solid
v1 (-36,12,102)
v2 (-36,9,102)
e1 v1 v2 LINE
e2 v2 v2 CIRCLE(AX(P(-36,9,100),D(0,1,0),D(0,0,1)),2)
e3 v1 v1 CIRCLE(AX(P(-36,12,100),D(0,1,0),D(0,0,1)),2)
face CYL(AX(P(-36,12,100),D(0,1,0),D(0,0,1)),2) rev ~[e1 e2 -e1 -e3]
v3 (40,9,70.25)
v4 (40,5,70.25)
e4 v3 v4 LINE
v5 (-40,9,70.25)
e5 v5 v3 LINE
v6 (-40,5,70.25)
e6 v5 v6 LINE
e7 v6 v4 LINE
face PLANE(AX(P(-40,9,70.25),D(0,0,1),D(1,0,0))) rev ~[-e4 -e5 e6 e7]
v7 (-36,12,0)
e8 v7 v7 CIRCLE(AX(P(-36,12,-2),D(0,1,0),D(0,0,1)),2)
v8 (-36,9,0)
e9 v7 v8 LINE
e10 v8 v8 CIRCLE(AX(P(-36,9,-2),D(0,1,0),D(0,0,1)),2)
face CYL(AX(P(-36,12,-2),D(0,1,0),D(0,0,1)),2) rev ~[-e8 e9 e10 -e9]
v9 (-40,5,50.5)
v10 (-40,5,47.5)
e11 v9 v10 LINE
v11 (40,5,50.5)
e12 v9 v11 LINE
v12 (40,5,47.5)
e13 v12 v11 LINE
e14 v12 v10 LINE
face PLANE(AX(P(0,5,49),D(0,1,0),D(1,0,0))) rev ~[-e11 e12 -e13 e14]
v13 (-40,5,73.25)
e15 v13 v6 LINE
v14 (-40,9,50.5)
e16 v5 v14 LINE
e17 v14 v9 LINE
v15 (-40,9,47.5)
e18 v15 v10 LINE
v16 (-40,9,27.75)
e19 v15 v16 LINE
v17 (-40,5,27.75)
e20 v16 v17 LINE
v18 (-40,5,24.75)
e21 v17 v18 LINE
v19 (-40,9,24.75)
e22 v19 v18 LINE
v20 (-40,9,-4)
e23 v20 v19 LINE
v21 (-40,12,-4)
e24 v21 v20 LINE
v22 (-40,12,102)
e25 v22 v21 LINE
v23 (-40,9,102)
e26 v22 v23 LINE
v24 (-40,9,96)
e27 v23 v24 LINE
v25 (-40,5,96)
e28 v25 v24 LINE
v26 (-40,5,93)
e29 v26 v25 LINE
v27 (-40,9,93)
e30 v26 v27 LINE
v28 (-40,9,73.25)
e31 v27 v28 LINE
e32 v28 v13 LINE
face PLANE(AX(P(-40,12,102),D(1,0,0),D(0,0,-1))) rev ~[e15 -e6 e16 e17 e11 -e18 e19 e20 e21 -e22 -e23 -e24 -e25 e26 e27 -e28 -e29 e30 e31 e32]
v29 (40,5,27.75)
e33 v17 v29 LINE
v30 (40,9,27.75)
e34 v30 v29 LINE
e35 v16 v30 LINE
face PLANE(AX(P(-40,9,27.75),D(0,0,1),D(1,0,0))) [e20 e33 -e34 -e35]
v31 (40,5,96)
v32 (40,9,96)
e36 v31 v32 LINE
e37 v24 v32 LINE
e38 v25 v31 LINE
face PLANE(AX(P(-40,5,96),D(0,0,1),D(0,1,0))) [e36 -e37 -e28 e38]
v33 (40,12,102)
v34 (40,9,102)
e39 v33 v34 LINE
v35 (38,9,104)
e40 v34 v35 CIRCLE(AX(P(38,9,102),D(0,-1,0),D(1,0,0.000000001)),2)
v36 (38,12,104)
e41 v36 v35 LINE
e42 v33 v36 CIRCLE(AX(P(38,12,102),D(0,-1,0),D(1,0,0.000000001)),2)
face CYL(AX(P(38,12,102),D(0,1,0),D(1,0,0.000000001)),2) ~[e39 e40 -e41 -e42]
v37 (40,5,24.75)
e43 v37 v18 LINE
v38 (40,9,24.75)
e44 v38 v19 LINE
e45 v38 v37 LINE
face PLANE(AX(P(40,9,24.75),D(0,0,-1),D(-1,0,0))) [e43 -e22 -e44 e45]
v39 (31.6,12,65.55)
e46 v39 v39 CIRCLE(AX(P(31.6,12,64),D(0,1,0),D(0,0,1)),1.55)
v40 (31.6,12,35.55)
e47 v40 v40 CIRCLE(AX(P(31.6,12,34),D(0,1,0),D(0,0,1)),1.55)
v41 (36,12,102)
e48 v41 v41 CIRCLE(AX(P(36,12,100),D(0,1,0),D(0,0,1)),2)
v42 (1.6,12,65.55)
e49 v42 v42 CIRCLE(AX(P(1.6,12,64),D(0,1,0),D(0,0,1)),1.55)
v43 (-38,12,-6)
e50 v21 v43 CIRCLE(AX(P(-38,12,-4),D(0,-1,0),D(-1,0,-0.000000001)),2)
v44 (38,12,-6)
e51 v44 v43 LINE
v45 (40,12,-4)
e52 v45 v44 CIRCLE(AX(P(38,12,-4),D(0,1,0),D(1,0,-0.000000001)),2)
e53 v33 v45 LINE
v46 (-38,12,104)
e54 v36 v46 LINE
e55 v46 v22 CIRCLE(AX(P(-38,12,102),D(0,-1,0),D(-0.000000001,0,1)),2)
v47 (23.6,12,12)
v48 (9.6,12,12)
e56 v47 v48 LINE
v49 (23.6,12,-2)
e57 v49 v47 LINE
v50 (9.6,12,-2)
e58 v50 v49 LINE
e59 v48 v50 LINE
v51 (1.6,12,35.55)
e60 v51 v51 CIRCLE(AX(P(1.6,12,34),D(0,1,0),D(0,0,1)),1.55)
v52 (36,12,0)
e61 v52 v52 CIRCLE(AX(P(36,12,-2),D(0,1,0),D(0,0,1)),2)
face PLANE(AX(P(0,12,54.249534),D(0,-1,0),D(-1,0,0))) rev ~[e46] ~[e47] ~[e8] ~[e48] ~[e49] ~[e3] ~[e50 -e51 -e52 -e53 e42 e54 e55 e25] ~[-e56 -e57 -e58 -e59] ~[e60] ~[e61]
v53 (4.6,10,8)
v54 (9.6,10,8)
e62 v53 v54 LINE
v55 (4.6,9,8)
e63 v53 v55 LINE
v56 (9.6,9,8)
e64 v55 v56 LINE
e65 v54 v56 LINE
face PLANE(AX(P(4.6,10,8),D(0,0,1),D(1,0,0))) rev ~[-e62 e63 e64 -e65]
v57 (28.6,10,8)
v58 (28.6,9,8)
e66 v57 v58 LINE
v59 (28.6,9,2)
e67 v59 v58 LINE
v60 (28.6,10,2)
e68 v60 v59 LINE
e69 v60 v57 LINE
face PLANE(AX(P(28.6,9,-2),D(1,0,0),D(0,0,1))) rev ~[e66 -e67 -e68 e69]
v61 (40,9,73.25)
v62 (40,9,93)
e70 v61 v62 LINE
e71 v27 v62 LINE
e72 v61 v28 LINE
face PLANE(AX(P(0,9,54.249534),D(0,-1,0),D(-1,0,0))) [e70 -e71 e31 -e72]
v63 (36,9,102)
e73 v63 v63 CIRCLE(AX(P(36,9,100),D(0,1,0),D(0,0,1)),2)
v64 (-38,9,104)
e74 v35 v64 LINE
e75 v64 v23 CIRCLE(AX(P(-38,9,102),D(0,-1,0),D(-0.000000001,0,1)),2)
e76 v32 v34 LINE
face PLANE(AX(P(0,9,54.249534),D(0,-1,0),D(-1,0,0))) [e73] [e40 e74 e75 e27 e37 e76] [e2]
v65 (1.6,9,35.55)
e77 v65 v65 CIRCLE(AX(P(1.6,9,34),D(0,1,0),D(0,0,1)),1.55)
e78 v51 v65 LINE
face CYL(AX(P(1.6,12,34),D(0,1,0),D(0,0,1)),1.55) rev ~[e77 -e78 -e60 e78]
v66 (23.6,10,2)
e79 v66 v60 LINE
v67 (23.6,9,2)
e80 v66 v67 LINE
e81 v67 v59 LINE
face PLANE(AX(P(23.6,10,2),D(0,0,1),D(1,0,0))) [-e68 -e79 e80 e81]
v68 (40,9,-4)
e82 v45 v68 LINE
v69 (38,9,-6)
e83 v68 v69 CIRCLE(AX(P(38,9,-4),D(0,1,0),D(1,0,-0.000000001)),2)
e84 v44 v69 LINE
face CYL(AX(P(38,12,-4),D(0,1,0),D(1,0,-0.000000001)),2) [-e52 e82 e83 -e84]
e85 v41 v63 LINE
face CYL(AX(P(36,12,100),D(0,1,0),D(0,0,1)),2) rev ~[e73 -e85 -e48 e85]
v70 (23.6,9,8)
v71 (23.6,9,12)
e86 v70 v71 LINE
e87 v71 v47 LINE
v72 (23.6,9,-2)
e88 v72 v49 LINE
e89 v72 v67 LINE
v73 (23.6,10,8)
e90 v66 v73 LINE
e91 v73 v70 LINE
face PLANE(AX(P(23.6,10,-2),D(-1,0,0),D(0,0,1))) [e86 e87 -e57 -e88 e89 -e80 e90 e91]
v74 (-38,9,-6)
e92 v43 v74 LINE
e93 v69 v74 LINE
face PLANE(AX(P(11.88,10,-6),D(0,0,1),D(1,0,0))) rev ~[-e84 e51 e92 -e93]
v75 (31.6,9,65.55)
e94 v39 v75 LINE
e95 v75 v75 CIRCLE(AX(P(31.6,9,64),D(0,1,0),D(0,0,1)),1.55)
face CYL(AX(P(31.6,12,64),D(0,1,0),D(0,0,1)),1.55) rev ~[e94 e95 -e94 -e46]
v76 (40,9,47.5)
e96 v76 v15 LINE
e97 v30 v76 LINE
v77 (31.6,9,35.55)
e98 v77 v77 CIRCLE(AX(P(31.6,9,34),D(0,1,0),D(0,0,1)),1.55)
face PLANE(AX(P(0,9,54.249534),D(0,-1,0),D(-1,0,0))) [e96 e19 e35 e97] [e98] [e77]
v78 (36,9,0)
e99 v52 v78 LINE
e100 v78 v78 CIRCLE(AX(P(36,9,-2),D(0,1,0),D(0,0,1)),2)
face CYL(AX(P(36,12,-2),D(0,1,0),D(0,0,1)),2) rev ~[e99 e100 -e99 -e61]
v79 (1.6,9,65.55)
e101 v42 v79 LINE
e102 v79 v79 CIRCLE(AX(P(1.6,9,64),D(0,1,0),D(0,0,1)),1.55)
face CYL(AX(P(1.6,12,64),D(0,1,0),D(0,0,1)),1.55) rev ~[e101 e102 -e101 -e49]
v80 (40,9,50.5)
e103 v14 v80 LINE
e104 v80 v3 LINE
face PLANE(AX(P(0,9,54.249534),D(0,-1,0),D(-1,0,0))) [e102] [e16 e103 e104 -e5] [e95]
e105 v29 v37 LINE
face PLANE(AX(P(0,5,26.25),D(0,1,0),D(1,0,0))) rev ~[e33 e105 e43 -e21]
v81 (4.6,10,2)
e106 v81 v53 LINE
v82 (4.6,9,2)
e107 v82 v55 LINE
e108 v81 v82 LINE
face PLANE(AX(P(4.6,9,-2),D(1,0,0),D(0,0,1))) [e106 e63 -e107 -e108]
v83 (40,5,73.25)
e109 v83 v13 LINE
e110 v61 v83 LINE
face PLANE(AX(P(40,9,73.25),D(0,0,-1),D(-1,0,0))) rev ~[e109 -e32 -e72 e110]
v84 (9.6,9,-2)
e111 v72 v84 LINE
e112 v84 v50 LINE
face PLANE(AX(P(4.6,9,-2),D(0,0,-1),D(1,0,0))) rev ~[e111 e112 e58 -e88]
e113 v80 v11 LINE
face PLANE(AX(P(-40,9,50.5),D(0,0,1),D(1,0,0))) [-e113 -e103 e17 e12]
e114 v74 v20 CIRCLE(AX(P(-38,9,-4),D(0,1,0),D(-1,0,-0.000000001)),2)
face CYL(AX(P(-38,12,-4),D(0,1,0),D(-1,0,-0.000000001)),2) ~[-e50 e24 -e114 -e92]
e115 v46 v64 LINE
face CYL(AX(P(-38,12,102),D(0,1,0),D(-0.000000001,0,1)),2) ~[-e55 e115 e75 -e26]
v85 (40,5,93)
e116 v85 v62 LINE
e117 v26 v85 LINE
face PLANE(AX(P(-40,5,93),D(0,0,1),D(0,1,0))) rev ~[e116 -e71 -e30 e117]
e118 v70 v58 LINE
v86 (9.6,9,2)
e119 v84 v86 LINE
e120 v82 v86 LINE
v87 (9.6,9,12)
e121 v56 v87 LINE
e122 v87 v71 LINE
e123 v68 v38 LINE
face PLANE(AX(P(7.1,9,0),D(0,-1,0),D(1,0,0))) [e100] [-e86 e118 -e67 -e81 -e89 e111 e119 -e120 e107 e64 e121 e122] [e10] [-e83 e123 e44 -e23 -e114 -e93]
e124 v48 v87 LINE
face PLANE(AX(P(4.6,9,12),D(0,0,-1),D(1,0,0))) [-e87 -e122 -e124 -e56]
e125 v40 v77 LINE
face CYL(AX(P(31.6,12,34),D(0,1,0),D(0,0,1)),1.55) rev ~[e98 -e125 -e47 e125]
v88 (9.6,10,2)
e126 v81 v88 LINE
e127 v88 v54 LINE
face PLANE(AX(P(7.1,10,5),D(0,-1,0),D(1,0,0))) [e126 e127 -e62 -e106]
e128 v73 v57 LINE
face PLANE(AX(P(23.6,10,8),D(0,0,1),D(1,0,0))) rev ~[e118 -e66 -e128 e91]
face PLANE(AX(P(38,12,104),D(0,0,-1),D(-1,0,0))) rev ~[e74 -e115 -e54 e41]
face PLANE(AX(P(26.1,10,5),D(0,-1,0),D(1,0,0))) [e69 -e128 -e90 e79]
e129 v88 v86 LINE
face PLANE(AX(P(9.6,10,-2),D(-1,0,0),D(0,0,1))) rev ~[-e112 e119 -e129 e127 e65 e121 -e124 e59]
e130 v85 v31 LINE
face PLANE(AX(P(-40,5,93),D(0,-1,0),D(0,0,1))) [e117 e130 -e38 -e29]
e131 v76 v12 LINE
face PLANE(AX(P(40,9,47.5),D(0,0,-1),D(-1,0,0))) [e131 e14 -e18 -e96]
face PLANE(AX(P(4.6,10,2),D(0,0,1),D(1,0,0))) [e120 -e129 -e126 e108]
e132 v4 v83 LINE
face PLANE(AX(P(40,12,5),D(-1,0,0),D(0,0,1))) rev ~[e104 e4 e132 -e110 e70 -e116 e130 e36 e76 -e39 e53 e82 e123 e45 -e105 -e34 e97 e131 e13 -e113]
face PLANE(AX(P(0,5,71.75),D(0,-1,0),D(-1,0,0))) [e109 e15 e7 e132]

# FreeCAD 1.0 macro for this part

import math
import FreeCAD as App
import Part
import Sketcher
from FreeCAD import Vector
Q = App.Units.Quantity


def add_polygon(sketch, points):
    """Adds a closed chain of lines whose ends are joined by coincident constraints."""
    first, n = sketch.GeometryCount, len(points)
    for a, b in zip(points, points[1:] + points[:1]):
        sketch.addGeometry(Part.LineSegment(App.Vector(*a, 0), App.Vector(*b, 0)), False)
    for i in range(n):
        sketch.addConstraint(Sketcher.Constraint("Coincident", first + i, 2, first + (i + 1) % n, 1))

doc = App.newDocument("Part")
body = doc.addObject("PartDesign::Body", "Body")

# Sketch on XZ plane
sketch1 = body.newObject("Sketcher::SketchObject", "Sketch")
sketch1.AttachmentSupport = (doc.getObject("XZ_Plane"), [""])
sketch1.MapMode = "FlatFace"
add_polygon(sketch1, [(-40, 6), (40, 6), (40, -6), (-40, -6)])  # lines 0-3
sketch1.addConstraint([
    Sketcher.Constraint("Horizontal", 0),
    Sketcher.Constraint("Vertical", 1),
    Sketcher.Constraint("Horizontal", 2),
    Sketcher.Constraint("Vertical", 3),
    Sketcher.Constraint("Symmetric", 0, 2, 2, 2, -1, 1),
    Sketcher.Constraint("DistanceX", 0, 1, 0, 2, Q("80 mm")),
    Sketcher.Constraint("DistanceY", 1, 2, 1, 1, Q("12 mm")),
])
pad1 = body.newObject("PartDesign::Pad", "Pad")
pad1.Profile = sketch1
pad1.Length = 12
pad1.Reversed = True

# Sketch on XY plane
sketch2 = body.newObject("Sketcher::SketchObject", "Sketch001")
sketch2.AttachmentSupport = (doc.getObject("XY_Plane"), [""])
sketch2.MapMode = "FlatFace"
sketch2.AttachmentOffset = App.Placement(Vector(0, 0, 6), App.Rotation())
add_polygon(sketch2, [(-28, 0), (28, 0), (28, 8), (-28, 8)])  # lines 0-3
add_polygon(sketch2, [(-40, 4), (-32, 4), (-32, 12), (-40, 12)])  # lines 4-7
add_polygon(sketch2, [(32, 4), (40, 4), (40, 12), (32, 12)])  # lines 8-11
sketch2.addConstraint([
    Sketcher.Constraint("Horizontal", 0),
    Sketcher.Constraint("Vertical", 1),
    Sketcher.Constraint("Horizontal", 2),
    Sketcher.Constraint("Vertical", 3),
    Sketcher.Constraint("Horizontal", 4),
    Sketcher.Constraint("Vertical", 5),
    Sketcher.Constraint("Horizontal", 6),
    Sketcher.Constraint("Vertical", 7),
    Sketcher.Constraint("Horizontal", 8),
    Sketcher.Constraint("Vertical", 9),
    Sketcher.Constraint("Horizontal", 10),
    Sketcher.Constraint("Vertical", 11),
    Sketcher.Constraint("Symmetric", 0, 2, 3, 2, -1, 1),
    Sketcher.Constraint("Symmetric", 7, 2, 8, 2, -2),
    Sketcher.Constraint("Symmetric", 5, 2, 10, 2, -2),
    Sketcher.Constraint("Equal", 10, 1),
    Sketcher.Constraint("Equal", 3, 5),
    Sketcher.Constraint("DistanceX", 0, 1, 0, 2, Q("56 mm")),
    Sketcher.Constraint("DistanceX", 4, 1, 4, 2, Q("8 mm")),
    Sketcher.Constraint("DistanceX", 4, 2, -1, 1, Q("32 mm")),
    Sketcher.Constraint("DistanceY", -1, 1, 4, 2, Q("4 mm")),
])
pocket1 = body.newObject("PartDesign::Pocket", "Pocket")
pocket1.Profile = sketch2
pocket1.Length = 12

# Sketch on XZ plane
sketch3 = body.newObject("Sketcher::SketchObject", "Sketch002")
sketch3.AttachmentSupport = (doc.getObject("XZ_Plane"), [""])
sketch3.MapMode = "FlatFace"
sketch3.AttachmentOffset = App.Placement(Vector(0, 0, -12), App.Rotation())
sketch3.addGeometry([
    Part.LineSegment(Vector(-40, -6, 0), Vector(-40, -4, 0)),  # 0
    Part.ArcOfCircle(Part.Circle(Vector(-38, -4, 0), Vector(0, 0, 1), 2), math.radians(-180), math.radians(-90)),  # 1
    Part.LineSegment(Vector(-38, -6, 0), Vector(-40, -6, 0)),  # 2
    Part.Circle(Vector(-36, -2, 0), Vector(0, 0, 1), 2),  # 3
    Part.ArcOfCircle(Part.Circle(Vector(38, -4, 0), Vector(0, 0, 1), 2), math.radians(-90), math.radians(0)),  # 4
    Part.LineSegment(Vector(40, -4, 0), Vector(40, -6, 0)),  # 5
    Part.LineSegment(Vector(40, -6, 0), Vector(38, -6, 0)),  # 6
    Part.Circle(Vector(36, -2, 0), Vector(0, 0, 1), 2),  # 7
], False)
sketch3.addConstraint([
    Sketcher.Constraint("Tangent", 0, 2, 1, 1),
    Sketcher.Constraint("Tangent", 1, 2, 2, 1),
    Sketcher.Constraint("Coincident", 2, 2, 0, 1),
    Sketcher.Constraint("Tangent", 4, 2, 5, 1),
    Sketcher.Constraint("Coincident", 5, 2, 6, 1),
    Sketcher.Constraint("Tangent", 6, 2, 4, 1),
    Sketcher.Constraint("Vertical", 0),
    Sketcher.Constraint("Horizontal", 2),
    Sketcher.Constraint("Vertical", 5),
    Sketcher.Constraint("Horizontal", 6),
    Sketcher.Constraint("Equal", 1, 3),
    Sketcher.Constraint("Equal", 3, 4),
    Sketcher.Constraint("Equal", 4, 7),
    Sketcher.Constraint("Symmetric", 1, 3, 4, 3, -2),
    Sketcher.Constraint("Symmetric", 3, 3, 7, 3, -2),
    Sketcher.Constraint("Diameter", 3, Q("4 mm")),
    Sketcher.Constraint("DistanceX", 1, 3, -1, 1, Q("38 mm")),
    Sketcher.Constraint("DistanceY", 1, 3, -1, 1, Q("4 mm")),
    Sketcher.Constraint("DistanceX", 3, 3, -1, 1, Q("36 mm")),
    Sketcher.Constraint("DistanceY", 3, 3, -1, 1, Q("2 mm")),
])
pocket2 = body.newObject("PartDesign::Pocket", "Pocket001")
pocket2.Profile = sketch3
pocket2.Length = 12
pocket2.Reversed = True

# Sketch on XZ plane
sketch4 = body.newObject("Sketcher::SketchObject", "Sketch003")
sketch4.AttachmentSupport = (doc.getObject("XZ_Plane"), [""])
sketch4.MapMode = "FlatFace"
sketch4.AttachmentOffset = App.Placement(Vector(0, 0, -12), App.Rotation())
add_polygon(sketch4, [(-21.1, -6), (-21.1, 6), (-12.1, 6), (-12.1, 0), (12.08, 0), (12.08, 6), (21.12, 6), (21.12, -6)])  # lines 0-7
sketch4.addConstraint([
    Sketcher.Constraint("Vertical", 0),
    Sketcher.Constraint("Horizontal", 1),
    Sketcher.Constraint("Vertical", 2),
    Sketcher.Constraint("Horizontal", 3),
    Sketcher.Constraint("Vertical", 4),
    Sketcher.Constraint("Horizontal", 5),
    Sketcher.Constraint("Vertical", 6),
    Sketcher.Constraint("Horizontal", 7),
    Sketcher.Constraint("PointOnObject", 2, 2, -1),
    Sketcher.Constraint("Horizontal", 1, 2, 4, 2),
    Sketcher.Constraint("DistanceX", 1, 1, 1, 2, Q("9 mm")),
    Sketcher.Constraint("DistanceY", 0, 1, 0, 2, Q("12 mm")),
    Sketcher.Constraint("DistanceY", 2, 2, 2, 1, Q("6 mm")),
    Sketcher.Constraint("DistanceX", 3, 1, 3, 2, Q("24.18 mm")),
    Sketcher.Constraint("DistanceX", 5, 1, 5, 2, Q("9.04 mm")),
    Sketcher.Constraint("DistanceX", 0, 2, -1, 1, Q("21.1 mm")),
])
pocket3 = body.newObject("PartDesign::Pocket", "Pocket002")
pocket3.Profile = sketch4
pocket3.Length = 1
pocket3.Reversed = True

# Sketch on XZ plane
sketch5 = body.newObject("Sketcher::SketchObject", "Sketch004")
sketch5.AttachmentSupport = (doc.getObject("XZ_Plane"), [""])
sketch5.MapMode = "FlatFace"
sketch5.AttachmentOffset = App.Placement(Vector(0, 0, -12), App.Rotation())
add_polygon(sketch5, [(-40, 2), (-40, 6), (40, 6), (40, 2)])  # lines 0-3
sketch5.addConstraint([
    Sketcher.Constraint("Vertical", 0),
    Sketcher.Constraint("Horizontal", 1),
    Sketcher.Constraint("Vertical", 2),
    Sketcher.Constraint("Horizontal", 3),
    Sketcher.Constraint("DistanceX", 1, 1, 1, 2, Q("80 mm")),
    Sketcher.Constraint("DistanceY", 0, 1, 0, 2, Q("4 mm")),
    Sketcher.Constraint("DistanceX", 0, 2, -1, 1, Q("40 mm")),
    Sketcher.Constraint("DistanceY", -1, 1, 0, 2, Q("6 mm")),
])
pocket4 = body.newObject("PartDesign::Pocket", "Pocket003")
pocket4.Profile = sketch5
pocket4.Length = 20
pocket4.Reversed = True

# Sketch on XZ plane
sketch6 = body.newObject("Sketcher::SketchObject", "Sketch005")
sketch6.AttachmentSupport = (doc.getObject("XZ_Plane"), [""])
sketch6.MapMode = "FlatFace"
sketch6.AttachmentOffset = App.Placement(Vector(0, 0, -12), App.Rotation())
add_polygon(sketch6, [(12.08, 0), (12.08, -6), (-21.1, -6), (-21.1, 2), (-12.1, 2), (-12.1, 0)])  # lines 0-5
sketch6.addConstraint([
    Sketcher.Constraint("Vertical", 0),
    Sketcher.Constraint("Horizontal", 1),
    Sketcher.Constraint("Vertical", 2),
    Sketcher.Constraint("Horizontal", 3),
    Sketcher.Constraint("Vertical", 4),
    Sketcher.Constraint("Horizontal", 5),
    Sketcher.Constraint("PointOnObject", 4, 2, -1),
    Sketcher.Constraint("DistanceX", 3, 1, 3, 2, Q("9 mm")),
    Sketcher.Constraint("DistanceY", 0, 2, 0, 1, Q("6 mm")),
    Sketcher.Constraint("DistanceY", 2, 1, 2, 2, Q("8 mm")),
    Sketcher.Constraint("DistanceX", 1, 2, 1, 1, Q("33.18 mm")),
    Sketcher.Constraint("DistanceX", 1, 2, -1, 1, Q("21.1 mm")),
])
pad2 = body.newObject("PartDesign::Pad", "Pad001")
pad2.Profile = sketch6
pad2.Length = 1

# Sketch on XZ plane
sketch7 = body.newObject("Sketcher::SketchObject", "Sketch006")
sketch7.AttachmentSupport = (doc.getObject("XZ_Plane"), [""])
sketch7.MapMode = "FlatFace"
sketch7.AttachmentOffset = App.Placement(Vector(0, 0, -12), App.Rotation())
add_polygon(sketch7, [(21.12, -6), (21.12, 2), (21.32, 2), (21.32, -6)])  # lines 0-3
add_polygon(sketch7, [(11.88, -6), (11.88, 2), (12.08, 2), (12.08, -6)])  # lines 4-7
sketch7.addConstraint([
    Sketcher.Constraint("Vertical", 0),
    Sketcher.Constraint("Horizontal", 1),
    Sketcher.Constraint("Vertical", 2),
    Sketcher.Constraint("Horizontal", 3),
    Sketcher.Constraint("Vertical", 4),
    Sketcher.Constraint("Horizontal", 5),
    Sketcher.Constraint("Vertical", 6),
    Sketcher.Constraint("Horizontal", 7),
    Sketcher.Constraint("Horizontal", 1, 2, 4, 2),
    Sketcher.Constraint("Horizontal", 3, 2, 6, 2),
    Sketcher.Constraint("Equal", 3, 5),
    Sketcher.Constraint("DistanceY", 0, 1, 0, 2, Q("8 mm")),
    Sketcher.Constraint("DistanceX", 1, 1, 1, 2, Q("0.2 mm")),
    Sketcher.Constraint("DistanceY", -1, 1, 0, 2, Q("2 mm")),
    Sketcher.Constraint("DistanceX", -1, 1, 0, 2, Q("21.12 mm")),
    Sketcher.Constraint("DistanceX", -1, 1, 4, 2, Q("11.88 mm")),
])
pocket5 = body.newObject("PartDesign::Pocket", "Pocket004")
pocket5.Profile = sketch7
pocket5.Length = 1
pocket5.Reversed = True

# Sketch on XZ plane
sketch8 = body.newObject("Sketcher::SketchObject", "Sketch007")
sketch8.AttachmentSupport = (doc.getObject("XZ_Plane"), [""])
sketch8.MapMode = "FlatFace"
sketch8.AttachmentOffset = App.Placement(Vector(0, 0, -12), App.Rotation())
sketch8.addGeometry([
    Part.LineSegment(Vector(-40, 2, 0), Vector(-32, 2, 0)),  # 0
    Part.LineSegment(Vector(-32, 2, 0), Vector(-32, -6, 0)),  # 1
    Part.LineSegment(Vector(-32, -6, 0), Vector(-38, -6, 0)),  # 2
    Part.ArcOfCircle(Part.Circle(Vector(-38, -4, 0), Vector(0, 0, 1), 2), math.radians(-180), math.radians(-90)),  # 3
    Part.LineSegment(Vector(-40, -4, 0), Vector(-40, 2, 0)),  # 4
    Part.Circle(Vector(-36, -2, 0), Vector(0, 0, 1), 2),  # 5
    Part.LineSegment(Vector(32, 2, 0), Vector(40, 2, 0)),  # 6
    Part.LineSegment(Vector(40, 2, 0), Vector(40, -4, 0)),  # 7
    Part.ArcOfCircle(Part.Circle(Vector(38, -4, 0), Vector(0, 0, 1), 2), math.radians(-90), math.radians(0)),  # 8
    Part.LineSegment(Vector(38, -6, 0), Vector(32, -6, 0)),  # 9
    Part.LineSegment(Vector(32, -6, 0), Vector(32, 2, 0)),  # 10
    Part.Circle(Vector(36, -2, 0), Vector(0, 0, 1), 2),  # 11
], False)
sketch8.addConstraint([
    Sketcher.Constraint("Coincident", 0, 2, 1, 1),
    Sketcher.Constraint("Coincident", 1, 2, 2, 1),
    Sketcher.Constraint("Tangent", 2, 2, 3, 2),
    Sketcher.Constraint("Tangent", 3, 1, 4, 1),
    Sketcher.Constraint("Coincident", 4, 2, 0, 1),
    Sketcher.Constraint("Coincident", 6, 2, 7, 1),
    Sketcher.Constraint("Tangent", 7, 2, 8, 2),
    Sketcher.Constraint("Tangent", 8, 1, 9, 1),
    Sketcher.Constraint("Coincident", 9, 2, 10, 1),
    Sketcher.Constraint("Coincident", 10, 2, 6, 1),
    Sketcher.Constraint("Horizontal", 0),
    Sketcher.Constraint("Vertical", 1),
    Sketcher.Constraint("Horizontal", 2),
    Sketcher.Constraint("Vertical", 4),
    Sketcher.Constraint("Horizontal", 6),
    Sketcher.Constraint("Vertical", 7),
    Sketcher.Constraint("Horizontal", 9),
    Sketcher.Constraint("Vertical", 10),
    Sketcher.Constraint("Equal", 3, 5),
    Sketcher.Constraint("Equal", 5, 8),
    Sketcher.Constraint("Equal", 8, 11),
    Sketcher.Constraint("Symmetric", 3, 3, 8, 3, -2),
    Sketcher.Constraint("Symmetric", 5, 3, 11, 3, -2),
    Sketcher.Constraint("Symmetric", 0, 2, 10, 2, -2),
    Sketcher.Constraint("Equal", 6, 1),
    Sketcher.Constraint("Diameter", 5, Q("4 mm")),
    Sketcher.Constraint("DistanceX", 0, 1, 0, 2, Q("8 mm")),
    Sketcher.Constraint("DistanceX", 3, 3, -1, 1, Q("38 mm")),
    Sketcher.Constraint("DistanceY", 3, 3, -1, 1, Q("4 mm")),
    Sketcher.Constraint("DistanceX", 5, 3, -1, 1, Q("36 mm")),
    Sketcher.Constraint("DistanceY", 5, 3, -1, 1, Q("2 mm")),
])
pad3 = body.newObject("PartDesign::Pad", "Pad002")
pad3.Profile = sketch8
pad3.Length = 4

# Sketch on XY plane
sketch9 = body.newObject("Sketcher::SketchObject", "Sketch008")
sketch9.AttachmentSupport = (doc.getObject("XY_Plane"), [""])
sketch9.MapMode = "FlatFace"
sketch9.AttachmentOffset = App.Placement(Vector(0, 0, 2), App.Rotation())
add_polygon(sketch9, [(-40, 9), (-40, 0), (40, 0), (40, 9)])  # lines 0-3
sketch9.addConstraint([
    Sketcher.Constraint("Vertical", 0),
    Sketcher.Constraint("Horizontal", 1),
    Sketcher.Constraint("Vertical", 2),
    Sketcher.Constraint("Horizontal", 3),
    Sketcher.Constraint("Symmetric", 0, 2, 1, 2, -1, 1),
    Sketcher.Constraint("DistanceX", 1, 1, 1, 2, Q("80 mm")),
    Sketcher.Constraint("DistanceY", 0, 2, 0, 1, Q("9 mm")),
])
pocket6 = body.newObject("PartDesign::Pocket", "Pocket005")
pocket6.Profile = sketch9
pocket6.Length = 14

# Sketch on XY plane
sketch10 = body.newObject("Sketcher::SketchObject", "Sketch009")
sketch10.AttachmentSupport = (doc.getObject("XY_Plane"), [""])
sketch10.MapMode = "FlatFace"
sketch10.AttachmentOffset = App.Placement(Vector(0, 0, -6), App.Rotation())
add_polygon(sketch10, [(21.32, 10), (21.32, 9), (11.88, 9), (11.88, 10)])  # lines 0-3
sketch10.addConstraint([
    Sketcher.Constraint("Vertical", 0),
    Sketcher.Constraint("Horizontal", 1),
    Sketcher.Constraint("Vertical", 2),
    Sketcher.Constraint("Horizontal", 3),
    Sketcher.Constraint("DistanceY", 0, 2, 0, 1, Q("1 mm")),
    Sketcher.Constraint("DistanceY", -1, 1, 0, 2, Q("9 mm")),
    Sketcher.Constraint("DistanceX", 1, 2, 1, 1, Q("9.44 mm")),
    Sketcher.Constraint("DistanceX", -1, 1, 0, 2, Q("21.32 mm")),
])
pocket7 = body.newObject("PartDesign::Pocket", "Pocket006")
pocket7.Profile = sketch10
pocket7.Length = 14
pocket7.Reversed = True

# Sketch on XY plane
sketch11 = body.newObject("Sketcher::SketchObject", "Sketch010")
sketch11.AttachmentSupport = (doc.getObject("XY_Plane"), [""])
sketch11.MapMode = "FlatFace"
sketch11.AttachmentOffset = App.Placement(Vector(0, 0, -6), App.Rotation())
add_polygon(sketch11, [(21.32, 12), (21.32, 11), (11.88, 11), (11.88, 12)])  # lines 0-3
sketch11.addConstraint([
    Sketcher.Constraint("Vertical", 0),
    Sketcher.Constraint("Horizontal", 1),
    Sketcher.Constraint("Vertical", 2),
    Sketcher.Constraint("Horizontal", 3),
    Sketcher.Constraint("DistanceY", 0, 2, 0, 1, Q("1 mm")),
    Sketcher.Constraint("DistanceY", -1, 1, 0, 2, Q("11 mm")),
    Sketcher.Constraint("DistanceX", 1, 2, 1, 1, Q("9.44 mm")),
    Sketcher.Constraint("DistanceX", -1, 1, 0, 2, Q("21.32 mm")),
])
pad4 = body.newObject("PartDesign::Pad", "Pad003")
pad4.Profile = sketch11
pad4.Length = 8

# Sketch on XZ plane
sketch12 = body.newObject("Sketcher::SketchObject", "Sketch011")
sketch12.AttachmentSupport = (doc.getObject("XZ_Plane"), [""])
sketch12.MapMode = "FlatFace"
sketch12.AttachmentOffset = App.Placement(Vector(0, 0, -9), App.Rotation())
sketch12.addGeometry([
    Part.ArcOfCircle(Part.Circle(Vector(16.6, -2.72, 0), Vector(0, 0, 1), 4.45), math.radians(0), math.radians(135)),
    Part.ArcOfCircle(Part.Circle(Vector(16.6, -2.72, 0), Vector(0, 0, 1), 4.45), math.radians(135), math.radians(315)),
    Part.ArcOfCircle(Part.Circle(Vector(16.6, -2.72, 0), Vector(0, 0, 1), 4.45), math.radians(-45), math.radians(0)),
], False)
sketch12.addConstraint([
    Sketcher.Constraint("Tangent", 0, 2, 1, 1),
    Sketcher.Constraint("Tangent", 1, 2, 2, 1),
    Sketcher.Constraint("Tangent", 2, 2, 0, 1),
    Sketcher.Constraint("Horizontal", 1, 3, 2, 2),
    Sketcher.Constraint("Radius", 0, Q("4.45 mm")),
    Sketcher.Constraint("DistanceX", -1, 1, 0, 3, Q("16.6 mm")),
    Sketcher.Constraint("DistanceY", 0, 3, -1, 1, Q("2.72 mm")),
    Sketcher.Constraint("DistanceX", 0, 2, 1, 2, Q("6.29325 mm")),
    Sketcher.Constraint("DistanceX", -1, 1, 0, 2, Q("13.453375 mm")),
])
pocket8 = body.newObject("PartDesign::Pocket", "Pocket007")
pocket8.Profile = sketch12
pocket8.Length = 8

# Sketch on XZ plane
sketch13 = body.newObject("Sketcher::SketchObject", "Sketch012")
sketch13.AttachmentSupport = (doc.getObject("XZ_Plane"), [""])
sketch13.MapMode = "FlatFace"
sketch13.AttachmentOffset = App.Placement(Vector(0, 0, -12), App.Rotation())
add_polygon(sketch13, [(-40, 2), (-40, 5), (40, 5), (40, 2)])  # lines 0-3
sketch13.addConstraint([
    Sketcher.Constraint("Vertical", 0),
    Sketcher.Constraint("Horizontal", 1),
    Sketcher.Constraint("Vertical", 2),
    Sketcher.Constraint("Horizontal", 3),
    Sketcher.Constraint("DistanceX", 1, 1, 1, 2, Q("80 mm")),
    Sketcher.Constraint("DistanceY", 0, 1, 0, 2, Q("3 mm")),
    Sketcher.Constraint("DistanceX", 0, 2, -1, 1, Q("40 mm")),
    Sketcher.Constraint("DistanceY", -1, 1, 0, 2, Q("5 mm")),
])
pad5 = body.newObject("PartDesign::Pad", "Pad004")
pad5.Profile = sketch13
pad5.Length = 7

# Sketch on XZ plane
sketch14 = body.newObject("Sketcher::SketchObject", "Sketch013")
sketch14.AttachmentSupport = (doc.getObject("XZ_Plane"), [""])
sketch14.MapMode = "FlatFace"
sketch14.AttachmentOffset = App.Placement(Vector(0, 0, -12), App.Rotation())
sketch14.addGeometry([
    Part.LineSegment(Vector(40, 5, 0), Vector(-40, 5, 0)),  # 0
    Part.LineSegment(Vector(-40, 5, 0), Vector(-40, 102, 0)),  # 1
    Part.ArcOfCircle(Part.Circle(Vector(-38, 102, 0), Vector(0, 0, 1), 2), math.radians(90), math.radians(180)),  # 2
    Part.LineSegment(Vector(-38, 104, 0), Vector(38, 104, 0)),  # 3
    Part.ArcOfCircle(Part.Circle(Vector(38, 102, 0), Vector(0, 0, 1), 2), math.radians(0), math.radians(90)),  # 4
    Part.LineSegment(Vector(40, 102, 0), Vector(40, 5, 0)),  # 5
    Part.Circle(Vector(36, 100, 0), Vector(0, 0, 1), 1.6),  # 6
    Part.Circle(Vector(-36, 100, 0), Vector(0, 0, 1), 1.6),  # 7
], False)
sketch14.addConstraint([
    Sketcher.Constraint("Coincident", 0, 2, 1, 1),
    Sketcher.Constraint("Tangent", 1, 2, 2, 2),
    Sketcher.Constraint("Tangent", 2, 1, 3, 1),
    Sketcher.Constraint("Tangent", 3, 2, 4, 2),
    Sketcher.Constraint("Tangent", 4, 1, 5, 1),
    Sketcher.Constraint("Coincident", 5, 2, 0, 1),
    Sketcher.Constraint("Horizontal", 0),
    Sketcher.Constraint("Vertical", 1),
    Sketcher.Constraint("Horizontal", 3),
    Sketcher.Constraint("Vertical", 5),
    Sketcher.Constraint("Equal", 2, 4),
    Sketcher.Constraint("Equal", 6, 7),
    Sketcher.Constraint("Symmetric", 6, 3, 7, 3, -2),
    Sketcher.Constraint("Radius", 2, Q("2 mm")),
    Sketcher.Constraint("Diameter", 6, Q("3.2 mm")),
    Sketcher.Constraint("DistanceX", 0, 2, 0, 1, Q("80 mm")),
    Sketcher.Constraint("DistanceY", 1, 1, 1, 2, Q("97 mm")),
    Sketcher.Constraint("DistanceX", 2, 3, -1, 1, Q("38 mm")),
    Sketcher.Constraint("DistanceY", -1, 1, 2, 3, Q("102 mm")),
    Sketcher.Constraint("DistanceX", -1, 1, 6, 3, Q("36 mm")),
    Sketcher.Constraint("DistanceY", -1, 1, 6, 3, Q("100 mm")),
])
pad6 = body.newObject("PartDesign::Pad", "Pad005")
pad6.Profile = sketch14
pad6.Length = 3

# Sketch on YZ plane
sketch15 = body.newObject("Sketcher::SketchObject", "Sketch014")
sketch15.AttachmentSupport = (doc.getObject("YZ_Plane"), [""])
sketch15.MapMode = "FlatFace"
sketch15.AttachmentOffset = App.Placement(Vector(0, 0, -40), App.Rotation())
add_polygon(sketch15, [(9, 93), (5, 93), (5, 96), (9, 96)])  # lines 0-3
sketch15.addConstraint([
    Sketcher.Constraint("Horizontal", 0),
    Sketcher.Constraint("Vertical", 1),
    Sketcher.Constraint("Horizontal", 2),
    Sketcher.Constraint("Vertical", 3),
    Sketcher.Constraint("DistanceX", 0, 2, 0, 1, Q("4 mm")),
    Sketcher.Constraint("DistanceY", 1, 1, 1, 2, Q("3 mm")),
    Sketcher.Constraint("DistanceX", -1, 1, 0, 2, Q("5 mm")),
    Sketcher.Constraint("DistanceY", -1, 1, 0, 2, Q("93 mm")),
])
pad7 = body.newObject("PartDesign::Pad", "Pad006")
pad7.Profile = sketch15
pad7.Length = 80

# Sketch on XZ plane
sketch16 = body.newObject("Sketcher::SketchObject", "Sketch015")
sketch16.AttachmentSupport = (doc.getObject("XZ_Plane"), [""])
sketch16.MapMode = "FlatFace"
sketch16.AttachmentOffset = App.Placement(Vector(0, 0, -12), App.Rotation())
sketch16.addGeometry([
    Part.Circle(Vector(1.6, 34, 0), Vector(0, 0, 1), 1.55),
    Part.Circle(Vector(31.6, 34, 0), Vector(0, 0, 1), 1.55),
    Part.Circle(Vector(31.6, 64, 0), Vector(0, 0, 1), 1.55),
    Part.Circle(Vector(1.6, 64, 0), Vector(0, 0, 1), 1.55),
], False)
sketch16.addConstraint([
    Sketcher.Constraint("Equal", 0, 1),
    Sketcher.Constraint("Equal", 1, 2),
    Sketcher.Constraint("Equal", 2, 3),
    Sketcher.Constraint("Horizontal", 0, 3, 1, 3),
    Sketcher.Constraint("Horizontal", 2, 3, 3, 3),
    Sketcher.Constraint("Vertical", 1, 3, 2, 3),
    Sketcher.Constraint("Vertical", 0, 3, 3, 3),
    Sketcher.Constraint("Diameter", 0, Q("3.1 mm")),
    Sketcher.Constraint("DistanceY", -1, 1, 0, 3, Q("34 mm")),
    Sketcher.Constraint("DistanceY", -1, 1, 2, 3, Q("64 mm")),
    Sketcher.Constraint("DistanceX", 0, 3, 1, 3, Q("30 mm")),
    Sketcher.Constraint("DistanceX", -1, 1, 0, 3, Q("1.6 mm")),
])
pocket9 = body.newObject("PartDesign::Pocket", "Pocket008")
pocket9.Profile = sketch16
pocket9.Length = 7
pocket9.Reversed = True

# Sketch on XZ plane
sketch17 = body.newObject("Sketcher::SketchObject", "Sketch016")
sketch17.AttachmentSupport = (doc.getObject("XZ_Plane"), [""])
sketch17.MapMode = "FlatFace"
sketch17.AttachmentOffset = App.Placement(Vector(0, 0, -12), App.Rotation())
sketch17.addGeometry([
    Part.Circle(Vector(-36, 100, 0), Vector(0, 0, 1), 2),
    Part.Circle(Vector(36, 100, 0), Vector(0, 0, 1), 2),
], False)
sketch17.addConstraint([
    Sketcher.Constraint("Equal", 0, 1),
    Sketcher.Constraint("Symmetric", 0, 3, 1, 3, -2),
    Sketcher.Constraint("Diameter", 0, Q("4 mm")),
    Sketcher.Constraint("DistanceX", 0, 3, -1, 1, Q("36 mm")),
    Sketcher.Constraint("DistanceY", -1, 1, 0, 3, Q("100 mm")),
])
pocket10 = body.newObject("PartDesign::Pocket", "Pocket009")
pocket10.Profile = sketch17
pocket10.Length = 7
pocket10.Reversed = True

# Sketch on XZ plane
sketch18 = body.newObject("Sketcher::SketchObject", "Sketch017")
sketch18.AttachmentSupport = (doc.getObject("XZ_Plane"), [""])
sketch18.MapMode = "FlatFace"
sketch18.AttachmentOffset = App.Placement(Vector(0, 0, -9), App.Rotation())
add_polygon(sketch18, [(-40, 50.5), (-40, 47.5), (40, 47.5), (40, 50.5)])  # lines 0-3
add_polygon(sketch18, [(-40, 27.75), (-40, 24.75), (40, 24.75), (40, 27.75)])  # lines 4-7
add_polygon(sketch18, [(40, 73.25), (-40, 73.25), (-40, 70.25), (40, 70.25)])  # lines 8-11
sketch18.addConstraint([
    Sketcher.Constraint("Vertical", 0),
    Sketcher.Constraint("Horizontal", 1),
    Sketcher.Constraint("Vertical", 2),
    Sketcher.Constraint("Horizontal", 3),
    Sketcher.Constraint("Vertical", 4),
    Sketcher.Constraint("Horizontal", 5),
    Sketcher.Constraint("Vertical", 6),
    Sketcher.Constraint("Horizontal", 7),
    Sketcher.Constraint("Horizontal", 8),
    Sketcher.Constraint("Vertical", 9),
    Sketcher.Constraint("Horizontal", 10),
    Sketcher.Constraint("Vertical", 11),
    Sketcher.Constraint("Vertical", 3, 2, 4, 2),
    Sketcher.Constraint("Vertical", 2, 2, 5, 2),
    Sketcher.Constraint("Vertical", 7, 2, 8, 2),
    Sketcher.Constraint("Vertical", 6, 2, 10, 2),
    Sketcher.Constraint("Equal", 2, 4),
    Sketcher.Constraint("Equal", 6, 9),
    Sketcher.Constraint("DistanceX", 1, 1, 1, 2, Q("80 mm")),
    Sketcher.Constraint("DistanceY", 0, 2, 0, 1, Q("3 mm")),
    Sketcher.Constraint("DistanceX", 0, 2, -1, 1, Q("40 mm")),
    Sketcher.Constraint("DistanceY", -1, 1, 0, 2, Q("47.5 mm")),
    Sketcher.Constraint("DistanceY", 7, 2, 8, 2, Q("45.5 mm")),
    Sketcher.Constraint("DistanceY", -1, 1, 4, 2, Q("24.75 mm")),
])
pad8 = body.newObject("PartDesign::Pad", "Pad007")
pad8.Profile = sketch18
pad8.Length = 4

# Sketch on YZ plane
sketch19 = body.newObject("Sketcher::SketchObject", "Sketch018")
sketch19.AttachmentSupport = (doc.getObject("YZ_Plane"), [""])
sketch19.MapMode = "FlatFace"
sketch19.AttachmentOffset = App.Placement(Vector(0, 0, -40), App.Rotation())
add_polygon(sketch19, [(9, 2), (5, 2), (5, 5), (9, 5)])  # lines 0-3
sketch19.addConstraint([
    Sketcher.Constraint("Horizontal", 0),
    Sketcher.Constraint("Vertical", 1),
    Sketcher.Constraint("Horizontal", 2),
    Sketcher.Constraint("Vertical", 3),
    Sketcher.Constraint("DistanceX", 0, 2, 0, 1, Q("4 mm")),
    Sketcher.Constraint("DistanceY", 1, 1, 1, 2, Q("3 mm")),
    Sketcher.Constraint("DistanceX", -1, 1, 0, 2, Q("5 mm")),
    Sketcher.Constraint("DistanceY", -1, 1, 0, 2, Q("2 mm")),
])
pocket11 = body.newObject("PartDesign::Pocket", "Pocket010")
pocket11.Profile = sketch19
pocket11.Length = 200
pocket11.Reversed = True

# Sketch on XZ plane
sketch20 = body.newObject("Sketcher::SketchObject", "Sketch019")
sketch20.AttachmentSupport = (doc.getObject("XZ_Plane"), [""])
sketch20.MapMode = "FlatFace"
sketch20.AttachmentOffset = App.Placement(Vector(0, 0, -9), App.Rotation())
add_polygon(sketch20, [(11.88, -2), (11.88, 2), (21.32, 2), (21.32, -2), (23.6, -2), (23.6, 12), (9.6, 12), (9.6, -2)])  # lines 0-7
sketch20.addConstraint([
    Sketcher.Constraint("Vertical", 0),
    Sketcher.Constraint("Horizontal", 1),
    Sketcher.Constraint("Vertical", 2),
    Sketcher.Constraint("Horizontal", 3),
    Sketcher.Constraint("Vertical", 4),
    Sketcher.Constraint("Horizontal", 5),
    Sketcher.Constraint("Vertical", 6),
    Sketcher.Constraint("Horizontal", 7),
    Sketcher.Constraint("Horizontal", 3, 2, 6, 2),
    Sketcher.Constraint("Equal", 3, 7),
    Sketcher.Constraint("Equal", 5, 4),
    Sketcher.Constraint("DistanceX", 5, 2, 5, 1, Q("14 mm")),
    Sketcher.Constraint("DistanceY", 0, 1, 0, 2, Q("4 mm")),
    Sketcher.Constraint("DistanceY", -1, 1, 0, 2, Q("2 mm")),
    Sketcher.Constraint("DistanceX", 1, 1, 1, 2, Q("9.44 mm")),
    Sketcher.Constraint("DistanceX", -1, 1, 3, 2, Q("23.6 mm")),
])
pocket12 = body.newObject("PartDesign::Pocket", "Pocket011")
pocket12.Profile = sketch20
pocket12.Length = 5

# Sketch on XZ plane
sketch21 = body.newObject("Sketcher::SketchObject", "Sketch020")
sketch21.AttachmentSupport = (doc.getObject("XZ_Plane"), [""])
sketch21.MapMode = "FlatFace"
sketch21.AttachmentOffset = App.Placement(Vector(0, 0, -10), App.Rotation())
add_polygon(sketch21, [(21.32, -2), (21.32, 2), (11.88, 2), (11.88, -2)])  # lines 0-3
sketch21.addConstraint([
    Sketcher.Constraint("Vertical", 0),
    Sketcher.Constraint("Horizontal", 1),
    Sketcher.Constraint("Vertical", 2),
    Sketcher.Constraint("Horizontal", 3),
    Sketcher.Constraint("DistanceY", 0, 1, 0, 2, Q("4 mm")),
    Sketcher.Constraint("DistanceY", -1, 1, 0, 2, Q("2 mm")),
    Sketcher.Constraint("DistanceX", 1, 2, 1, 1, Q("9.44 mm")),
    Sketcher.Constraint("DistanceX", -1, 1, 0, 2, Q("21.32 mm")),
])
pocket13 = body.newObject("PartDesign::Pocket", "Pocket012")
pocket13.Profile = sketch21
pocket13.Length = 5

# Sketch on XZ plane
sketch22 = body.newObject("Sketcher::SketchObject", "Sketch021")
sketch22.AttachmentSupport = (doc.getObject("XZ_Plane"), [""])
sketch22.MapMode = "FlatFace"
sketch22.AttachmentOffset = App.Placement(Vector(0, 0, -10), App.Rotation())
add_polygon(sketch22, [(21.32, -6), (21.32, -2), (11.88, -2), (11.88, -6)])  # lines 0-3
sketch22.addConstraint([
    Sketcher.Constraint("Vertical", 0),
    Sketcher.Constraint("Horizontal", 1),
    Sketcher.Constraint("Vertical", 2),
    Sketcher.Constraint("Horizontal", 3),
    Sketcher.Constraint("DistanceY", 0, 1, 0, 2, Q("4 mm")),
    Sketcher.Constraint("DistanceY", 0, 2, -1, 1, Q("2 mm")),
    Sketcher.Constraint("DistanceX", 1, 2, 1, 1, Q("9.44 mm")),
    Sketcher.Constraint("DistanceX", -1, 1, 0, 2, Q("21.32 mm")),
])
pad9 = body.newObject("PartDesign::Pad", "Pad008")
pad9.Profile = sketch22
pad9.Length = 2
pad9.Reversed = True

# Sketch on XZ plane
sketch23 = body.newObject("Sketcher::SketchObject", "Sketch022")
sketch23.AttachmentSupport = (doc.getObject("XZ_Plane"), [""])
sketch23.MapMode = "FlatFace"
sketch23.AttachmentOffset = App.Placement(Vector(0, 0, -10), App.Rotation())
add_polygon(sketch23, [(11.88, -2), (11.88, -6), (21.32, -6), (21.32, -2)])  # lines 0-3
sketch23.addConstraint([
    Sketcher.Constraint("Vertical", 0),
    Sketcher.Constraint("Horizontal", 1),
    Sketcher.Constraint("Vertical", 2),
    Sketcher.Constraint("Horizontal", 3),
    Sketcher.Constraint("DistanceY", 0, 2, 0, 1, Q("4 mm")),
    Sketcher.Constraint("DistanceY", 0, 2, -1, 1, Q("6 mm")),
    Sketcher.Constraint("DistanceX", 1, 1, 1, 2, Q("9.44 mm")),
    Sketcher.Constraint("DistanceX", -1, 1, 0, 2, Q("11.88 mm")),
])
pad10 = body.newObject("PartDesign::Pad", "Pad009")
pad10.Profile = sketch23
pad10.Length = 1

# Sketch on XZ plane
sketch24 = body.newObject("Sketcher::SketchObject", "Sketch023")
sketch24.AttachmentSupport = (doc.getObject("XZ_Plane"), [""])
sketch24.MapMode = "FlatFace"
sketch24.AttachmentOffset = App.Placement(Vector(0, 0, -9), App.Rotation())
add_polygon(sketch24, [(4.6, 12), (4.6, -2), (9.6, -2), (9.6, 12)])  # lines 0-3
add_polygon(sketch24, [(23.6, 12), (23.6, -2), (28.6, -2), (28.6, 12)])  # lines 4-7
sketch24.addConstraint([
    Sketcher.Constraint("Vertical", 0),
    Sketcher.Constraint("Horizontal", 1),
    Sketcher.Constraint("Vertical", 2),
    Sketcher.Constraint("Horizontal", 3),
    Sketcher.Constraint("Vertical", 4),
    Sketcher.Constraint("Horizontal", 5),
    Sketcher.Constraint("Vertical", 6),
    Sketcher.Constraint("Horizontal", 7),
    Sketcher.Constraint("Horizontal", 1, 2, 4, 2),
    Sketcher.Constraint("Horizontal", 3, 2, 6, 2),
    Sketcher.Constraint("Equal", 3, 5),
    Sketcher.Constraint("DistanceX", 1, 1, 1, 2, Q("5 mm")),
    Sketcher.Constraint("DistanceY", 0, 2, 0, 1, Q("14 mm")),
    Sketcher.Constraint("DistanceY", 0, 2, -1, 1, Q("2 mm")),
    Sketcher.Constraint("DistanceX", 1, 2, 4, 2, Q("14 mm")),
    Sketcher.Constraint("DistanceX", -1, 1, 0, 2, Q("4.6 mm")),
])
pocket14 = body.newObject("PartDesign::Pocket", "Pocket013")
pocket14.Profile = sketch24
pocket14.Length = 1

# Sketch on XZ plane
sketch25 = body.newObject("Sketcher::SketchObject", "Sketch024")
sketch25.AttachmentSupport = (doc.getObject("XZ_Plane"), [""])
sketch25.MapMode = "FlatFace"
sketch25.AttachmentOffset = App.Placement(Vector(0, 0, -10), App.Rotation())
add_polygon(sketch25, [(4.6, 2), (4.6, -2), (9.6, -2), (9.6, 2)])  # lines 0-3
add_polygon(sketch25, [(23.6, 12), (23.6, 8), (28.6, 8), (28.6, 12)])  # lines 4-7
add_polygon(sketch25, [(23.6, 2), (23.6, -2), (28.6, -2), (28.6, 2)])  # lines 8-11
add_polygon(sketch25, [(4.6, 12), (4.6, 8), (9.6, 8), (9.6, 12)])  # lines 12-15
sketch25.addConstraint([
    Sketcher.Constraint("Vertical", 0),
    Sketcher.Constraint("Horizontal", 1),
    Sketcher.Constraint("Vertical", 2),
    Sketcher.Constraint("Horizontal", 3),
    Sketcher.Constraint("Vertical", 4),
    Sketcher.Constraint("Horizontal", 5),
    Sketcher.Constraint("Vertical", 6),
    Sketcher.Constraint("Horizontal", 7),
    Sketcher.Constraint("Vertical", 8),
    Sketcher.Constraint("Horizontal", 9),
    Sketcher.Constraint("Vertical", 10),
    Sketcher.Constraint("Horizontal", 11),
    Sketcher.Constraint("Vertical", 12),
    Sketcher.Constraint("Horizontal", 13),
    Sketcher.Constraint("Vertical", 14),
    Sketcher.Constraint("Horizontal", 15),
    Sketcher.Constraint("Horizontal", 1, 2, 8, 2),
    Sketcher.Constraint("Horizontal", 3, 2, 10, 2),
    Sketcher.Constraint("Horizontal", 5, 2, 12, 2),
    Sketcher.Constraint("Horizontal", 7, 2, 14, 2),
    Sketcher.Constraint("Vertical", 7, 2, 8, 2),
    Sketcher.Constraint("Vertical", 6, 2, 9, 2),
    Sketcher.Constraint("Vertical", 3, 2, 12, 2),
    Sketcher.Constraint("Vertical", 2, 2, 13, 2),
    Sketcher.Constraint("Equal", 3, 5),
    Sketcher.Constraint("Equal", 2, 4),
    Sketcher.Constraint("DistanceX", 1, 1, 1, 2, Q("5 mm")),
    Sketcher.Constraint("DistanceY", 0, 2, 0, 1, Q("4 mm")),
    Sketcher.Constraint("DistanceY", 0, 2, -1, 1, Q("2 mm")),
    Sketcher.Constraint("DistanceY", -1, 1, 4, 2, Q("8 mm")),
    Sketcher.Constraint("DistanceX", 2, 2, 4, 2, Q("14 mm")),
    Sketcher.Constraint("DistanceX", -1, 1, 0, 2, Q("4.6 mm")),
])
pad11 = body.newObject("PartDesign::Pad", "Pad010")
pad11.Profile = sketch25
pad11.Length = 1

doc.recompute()
